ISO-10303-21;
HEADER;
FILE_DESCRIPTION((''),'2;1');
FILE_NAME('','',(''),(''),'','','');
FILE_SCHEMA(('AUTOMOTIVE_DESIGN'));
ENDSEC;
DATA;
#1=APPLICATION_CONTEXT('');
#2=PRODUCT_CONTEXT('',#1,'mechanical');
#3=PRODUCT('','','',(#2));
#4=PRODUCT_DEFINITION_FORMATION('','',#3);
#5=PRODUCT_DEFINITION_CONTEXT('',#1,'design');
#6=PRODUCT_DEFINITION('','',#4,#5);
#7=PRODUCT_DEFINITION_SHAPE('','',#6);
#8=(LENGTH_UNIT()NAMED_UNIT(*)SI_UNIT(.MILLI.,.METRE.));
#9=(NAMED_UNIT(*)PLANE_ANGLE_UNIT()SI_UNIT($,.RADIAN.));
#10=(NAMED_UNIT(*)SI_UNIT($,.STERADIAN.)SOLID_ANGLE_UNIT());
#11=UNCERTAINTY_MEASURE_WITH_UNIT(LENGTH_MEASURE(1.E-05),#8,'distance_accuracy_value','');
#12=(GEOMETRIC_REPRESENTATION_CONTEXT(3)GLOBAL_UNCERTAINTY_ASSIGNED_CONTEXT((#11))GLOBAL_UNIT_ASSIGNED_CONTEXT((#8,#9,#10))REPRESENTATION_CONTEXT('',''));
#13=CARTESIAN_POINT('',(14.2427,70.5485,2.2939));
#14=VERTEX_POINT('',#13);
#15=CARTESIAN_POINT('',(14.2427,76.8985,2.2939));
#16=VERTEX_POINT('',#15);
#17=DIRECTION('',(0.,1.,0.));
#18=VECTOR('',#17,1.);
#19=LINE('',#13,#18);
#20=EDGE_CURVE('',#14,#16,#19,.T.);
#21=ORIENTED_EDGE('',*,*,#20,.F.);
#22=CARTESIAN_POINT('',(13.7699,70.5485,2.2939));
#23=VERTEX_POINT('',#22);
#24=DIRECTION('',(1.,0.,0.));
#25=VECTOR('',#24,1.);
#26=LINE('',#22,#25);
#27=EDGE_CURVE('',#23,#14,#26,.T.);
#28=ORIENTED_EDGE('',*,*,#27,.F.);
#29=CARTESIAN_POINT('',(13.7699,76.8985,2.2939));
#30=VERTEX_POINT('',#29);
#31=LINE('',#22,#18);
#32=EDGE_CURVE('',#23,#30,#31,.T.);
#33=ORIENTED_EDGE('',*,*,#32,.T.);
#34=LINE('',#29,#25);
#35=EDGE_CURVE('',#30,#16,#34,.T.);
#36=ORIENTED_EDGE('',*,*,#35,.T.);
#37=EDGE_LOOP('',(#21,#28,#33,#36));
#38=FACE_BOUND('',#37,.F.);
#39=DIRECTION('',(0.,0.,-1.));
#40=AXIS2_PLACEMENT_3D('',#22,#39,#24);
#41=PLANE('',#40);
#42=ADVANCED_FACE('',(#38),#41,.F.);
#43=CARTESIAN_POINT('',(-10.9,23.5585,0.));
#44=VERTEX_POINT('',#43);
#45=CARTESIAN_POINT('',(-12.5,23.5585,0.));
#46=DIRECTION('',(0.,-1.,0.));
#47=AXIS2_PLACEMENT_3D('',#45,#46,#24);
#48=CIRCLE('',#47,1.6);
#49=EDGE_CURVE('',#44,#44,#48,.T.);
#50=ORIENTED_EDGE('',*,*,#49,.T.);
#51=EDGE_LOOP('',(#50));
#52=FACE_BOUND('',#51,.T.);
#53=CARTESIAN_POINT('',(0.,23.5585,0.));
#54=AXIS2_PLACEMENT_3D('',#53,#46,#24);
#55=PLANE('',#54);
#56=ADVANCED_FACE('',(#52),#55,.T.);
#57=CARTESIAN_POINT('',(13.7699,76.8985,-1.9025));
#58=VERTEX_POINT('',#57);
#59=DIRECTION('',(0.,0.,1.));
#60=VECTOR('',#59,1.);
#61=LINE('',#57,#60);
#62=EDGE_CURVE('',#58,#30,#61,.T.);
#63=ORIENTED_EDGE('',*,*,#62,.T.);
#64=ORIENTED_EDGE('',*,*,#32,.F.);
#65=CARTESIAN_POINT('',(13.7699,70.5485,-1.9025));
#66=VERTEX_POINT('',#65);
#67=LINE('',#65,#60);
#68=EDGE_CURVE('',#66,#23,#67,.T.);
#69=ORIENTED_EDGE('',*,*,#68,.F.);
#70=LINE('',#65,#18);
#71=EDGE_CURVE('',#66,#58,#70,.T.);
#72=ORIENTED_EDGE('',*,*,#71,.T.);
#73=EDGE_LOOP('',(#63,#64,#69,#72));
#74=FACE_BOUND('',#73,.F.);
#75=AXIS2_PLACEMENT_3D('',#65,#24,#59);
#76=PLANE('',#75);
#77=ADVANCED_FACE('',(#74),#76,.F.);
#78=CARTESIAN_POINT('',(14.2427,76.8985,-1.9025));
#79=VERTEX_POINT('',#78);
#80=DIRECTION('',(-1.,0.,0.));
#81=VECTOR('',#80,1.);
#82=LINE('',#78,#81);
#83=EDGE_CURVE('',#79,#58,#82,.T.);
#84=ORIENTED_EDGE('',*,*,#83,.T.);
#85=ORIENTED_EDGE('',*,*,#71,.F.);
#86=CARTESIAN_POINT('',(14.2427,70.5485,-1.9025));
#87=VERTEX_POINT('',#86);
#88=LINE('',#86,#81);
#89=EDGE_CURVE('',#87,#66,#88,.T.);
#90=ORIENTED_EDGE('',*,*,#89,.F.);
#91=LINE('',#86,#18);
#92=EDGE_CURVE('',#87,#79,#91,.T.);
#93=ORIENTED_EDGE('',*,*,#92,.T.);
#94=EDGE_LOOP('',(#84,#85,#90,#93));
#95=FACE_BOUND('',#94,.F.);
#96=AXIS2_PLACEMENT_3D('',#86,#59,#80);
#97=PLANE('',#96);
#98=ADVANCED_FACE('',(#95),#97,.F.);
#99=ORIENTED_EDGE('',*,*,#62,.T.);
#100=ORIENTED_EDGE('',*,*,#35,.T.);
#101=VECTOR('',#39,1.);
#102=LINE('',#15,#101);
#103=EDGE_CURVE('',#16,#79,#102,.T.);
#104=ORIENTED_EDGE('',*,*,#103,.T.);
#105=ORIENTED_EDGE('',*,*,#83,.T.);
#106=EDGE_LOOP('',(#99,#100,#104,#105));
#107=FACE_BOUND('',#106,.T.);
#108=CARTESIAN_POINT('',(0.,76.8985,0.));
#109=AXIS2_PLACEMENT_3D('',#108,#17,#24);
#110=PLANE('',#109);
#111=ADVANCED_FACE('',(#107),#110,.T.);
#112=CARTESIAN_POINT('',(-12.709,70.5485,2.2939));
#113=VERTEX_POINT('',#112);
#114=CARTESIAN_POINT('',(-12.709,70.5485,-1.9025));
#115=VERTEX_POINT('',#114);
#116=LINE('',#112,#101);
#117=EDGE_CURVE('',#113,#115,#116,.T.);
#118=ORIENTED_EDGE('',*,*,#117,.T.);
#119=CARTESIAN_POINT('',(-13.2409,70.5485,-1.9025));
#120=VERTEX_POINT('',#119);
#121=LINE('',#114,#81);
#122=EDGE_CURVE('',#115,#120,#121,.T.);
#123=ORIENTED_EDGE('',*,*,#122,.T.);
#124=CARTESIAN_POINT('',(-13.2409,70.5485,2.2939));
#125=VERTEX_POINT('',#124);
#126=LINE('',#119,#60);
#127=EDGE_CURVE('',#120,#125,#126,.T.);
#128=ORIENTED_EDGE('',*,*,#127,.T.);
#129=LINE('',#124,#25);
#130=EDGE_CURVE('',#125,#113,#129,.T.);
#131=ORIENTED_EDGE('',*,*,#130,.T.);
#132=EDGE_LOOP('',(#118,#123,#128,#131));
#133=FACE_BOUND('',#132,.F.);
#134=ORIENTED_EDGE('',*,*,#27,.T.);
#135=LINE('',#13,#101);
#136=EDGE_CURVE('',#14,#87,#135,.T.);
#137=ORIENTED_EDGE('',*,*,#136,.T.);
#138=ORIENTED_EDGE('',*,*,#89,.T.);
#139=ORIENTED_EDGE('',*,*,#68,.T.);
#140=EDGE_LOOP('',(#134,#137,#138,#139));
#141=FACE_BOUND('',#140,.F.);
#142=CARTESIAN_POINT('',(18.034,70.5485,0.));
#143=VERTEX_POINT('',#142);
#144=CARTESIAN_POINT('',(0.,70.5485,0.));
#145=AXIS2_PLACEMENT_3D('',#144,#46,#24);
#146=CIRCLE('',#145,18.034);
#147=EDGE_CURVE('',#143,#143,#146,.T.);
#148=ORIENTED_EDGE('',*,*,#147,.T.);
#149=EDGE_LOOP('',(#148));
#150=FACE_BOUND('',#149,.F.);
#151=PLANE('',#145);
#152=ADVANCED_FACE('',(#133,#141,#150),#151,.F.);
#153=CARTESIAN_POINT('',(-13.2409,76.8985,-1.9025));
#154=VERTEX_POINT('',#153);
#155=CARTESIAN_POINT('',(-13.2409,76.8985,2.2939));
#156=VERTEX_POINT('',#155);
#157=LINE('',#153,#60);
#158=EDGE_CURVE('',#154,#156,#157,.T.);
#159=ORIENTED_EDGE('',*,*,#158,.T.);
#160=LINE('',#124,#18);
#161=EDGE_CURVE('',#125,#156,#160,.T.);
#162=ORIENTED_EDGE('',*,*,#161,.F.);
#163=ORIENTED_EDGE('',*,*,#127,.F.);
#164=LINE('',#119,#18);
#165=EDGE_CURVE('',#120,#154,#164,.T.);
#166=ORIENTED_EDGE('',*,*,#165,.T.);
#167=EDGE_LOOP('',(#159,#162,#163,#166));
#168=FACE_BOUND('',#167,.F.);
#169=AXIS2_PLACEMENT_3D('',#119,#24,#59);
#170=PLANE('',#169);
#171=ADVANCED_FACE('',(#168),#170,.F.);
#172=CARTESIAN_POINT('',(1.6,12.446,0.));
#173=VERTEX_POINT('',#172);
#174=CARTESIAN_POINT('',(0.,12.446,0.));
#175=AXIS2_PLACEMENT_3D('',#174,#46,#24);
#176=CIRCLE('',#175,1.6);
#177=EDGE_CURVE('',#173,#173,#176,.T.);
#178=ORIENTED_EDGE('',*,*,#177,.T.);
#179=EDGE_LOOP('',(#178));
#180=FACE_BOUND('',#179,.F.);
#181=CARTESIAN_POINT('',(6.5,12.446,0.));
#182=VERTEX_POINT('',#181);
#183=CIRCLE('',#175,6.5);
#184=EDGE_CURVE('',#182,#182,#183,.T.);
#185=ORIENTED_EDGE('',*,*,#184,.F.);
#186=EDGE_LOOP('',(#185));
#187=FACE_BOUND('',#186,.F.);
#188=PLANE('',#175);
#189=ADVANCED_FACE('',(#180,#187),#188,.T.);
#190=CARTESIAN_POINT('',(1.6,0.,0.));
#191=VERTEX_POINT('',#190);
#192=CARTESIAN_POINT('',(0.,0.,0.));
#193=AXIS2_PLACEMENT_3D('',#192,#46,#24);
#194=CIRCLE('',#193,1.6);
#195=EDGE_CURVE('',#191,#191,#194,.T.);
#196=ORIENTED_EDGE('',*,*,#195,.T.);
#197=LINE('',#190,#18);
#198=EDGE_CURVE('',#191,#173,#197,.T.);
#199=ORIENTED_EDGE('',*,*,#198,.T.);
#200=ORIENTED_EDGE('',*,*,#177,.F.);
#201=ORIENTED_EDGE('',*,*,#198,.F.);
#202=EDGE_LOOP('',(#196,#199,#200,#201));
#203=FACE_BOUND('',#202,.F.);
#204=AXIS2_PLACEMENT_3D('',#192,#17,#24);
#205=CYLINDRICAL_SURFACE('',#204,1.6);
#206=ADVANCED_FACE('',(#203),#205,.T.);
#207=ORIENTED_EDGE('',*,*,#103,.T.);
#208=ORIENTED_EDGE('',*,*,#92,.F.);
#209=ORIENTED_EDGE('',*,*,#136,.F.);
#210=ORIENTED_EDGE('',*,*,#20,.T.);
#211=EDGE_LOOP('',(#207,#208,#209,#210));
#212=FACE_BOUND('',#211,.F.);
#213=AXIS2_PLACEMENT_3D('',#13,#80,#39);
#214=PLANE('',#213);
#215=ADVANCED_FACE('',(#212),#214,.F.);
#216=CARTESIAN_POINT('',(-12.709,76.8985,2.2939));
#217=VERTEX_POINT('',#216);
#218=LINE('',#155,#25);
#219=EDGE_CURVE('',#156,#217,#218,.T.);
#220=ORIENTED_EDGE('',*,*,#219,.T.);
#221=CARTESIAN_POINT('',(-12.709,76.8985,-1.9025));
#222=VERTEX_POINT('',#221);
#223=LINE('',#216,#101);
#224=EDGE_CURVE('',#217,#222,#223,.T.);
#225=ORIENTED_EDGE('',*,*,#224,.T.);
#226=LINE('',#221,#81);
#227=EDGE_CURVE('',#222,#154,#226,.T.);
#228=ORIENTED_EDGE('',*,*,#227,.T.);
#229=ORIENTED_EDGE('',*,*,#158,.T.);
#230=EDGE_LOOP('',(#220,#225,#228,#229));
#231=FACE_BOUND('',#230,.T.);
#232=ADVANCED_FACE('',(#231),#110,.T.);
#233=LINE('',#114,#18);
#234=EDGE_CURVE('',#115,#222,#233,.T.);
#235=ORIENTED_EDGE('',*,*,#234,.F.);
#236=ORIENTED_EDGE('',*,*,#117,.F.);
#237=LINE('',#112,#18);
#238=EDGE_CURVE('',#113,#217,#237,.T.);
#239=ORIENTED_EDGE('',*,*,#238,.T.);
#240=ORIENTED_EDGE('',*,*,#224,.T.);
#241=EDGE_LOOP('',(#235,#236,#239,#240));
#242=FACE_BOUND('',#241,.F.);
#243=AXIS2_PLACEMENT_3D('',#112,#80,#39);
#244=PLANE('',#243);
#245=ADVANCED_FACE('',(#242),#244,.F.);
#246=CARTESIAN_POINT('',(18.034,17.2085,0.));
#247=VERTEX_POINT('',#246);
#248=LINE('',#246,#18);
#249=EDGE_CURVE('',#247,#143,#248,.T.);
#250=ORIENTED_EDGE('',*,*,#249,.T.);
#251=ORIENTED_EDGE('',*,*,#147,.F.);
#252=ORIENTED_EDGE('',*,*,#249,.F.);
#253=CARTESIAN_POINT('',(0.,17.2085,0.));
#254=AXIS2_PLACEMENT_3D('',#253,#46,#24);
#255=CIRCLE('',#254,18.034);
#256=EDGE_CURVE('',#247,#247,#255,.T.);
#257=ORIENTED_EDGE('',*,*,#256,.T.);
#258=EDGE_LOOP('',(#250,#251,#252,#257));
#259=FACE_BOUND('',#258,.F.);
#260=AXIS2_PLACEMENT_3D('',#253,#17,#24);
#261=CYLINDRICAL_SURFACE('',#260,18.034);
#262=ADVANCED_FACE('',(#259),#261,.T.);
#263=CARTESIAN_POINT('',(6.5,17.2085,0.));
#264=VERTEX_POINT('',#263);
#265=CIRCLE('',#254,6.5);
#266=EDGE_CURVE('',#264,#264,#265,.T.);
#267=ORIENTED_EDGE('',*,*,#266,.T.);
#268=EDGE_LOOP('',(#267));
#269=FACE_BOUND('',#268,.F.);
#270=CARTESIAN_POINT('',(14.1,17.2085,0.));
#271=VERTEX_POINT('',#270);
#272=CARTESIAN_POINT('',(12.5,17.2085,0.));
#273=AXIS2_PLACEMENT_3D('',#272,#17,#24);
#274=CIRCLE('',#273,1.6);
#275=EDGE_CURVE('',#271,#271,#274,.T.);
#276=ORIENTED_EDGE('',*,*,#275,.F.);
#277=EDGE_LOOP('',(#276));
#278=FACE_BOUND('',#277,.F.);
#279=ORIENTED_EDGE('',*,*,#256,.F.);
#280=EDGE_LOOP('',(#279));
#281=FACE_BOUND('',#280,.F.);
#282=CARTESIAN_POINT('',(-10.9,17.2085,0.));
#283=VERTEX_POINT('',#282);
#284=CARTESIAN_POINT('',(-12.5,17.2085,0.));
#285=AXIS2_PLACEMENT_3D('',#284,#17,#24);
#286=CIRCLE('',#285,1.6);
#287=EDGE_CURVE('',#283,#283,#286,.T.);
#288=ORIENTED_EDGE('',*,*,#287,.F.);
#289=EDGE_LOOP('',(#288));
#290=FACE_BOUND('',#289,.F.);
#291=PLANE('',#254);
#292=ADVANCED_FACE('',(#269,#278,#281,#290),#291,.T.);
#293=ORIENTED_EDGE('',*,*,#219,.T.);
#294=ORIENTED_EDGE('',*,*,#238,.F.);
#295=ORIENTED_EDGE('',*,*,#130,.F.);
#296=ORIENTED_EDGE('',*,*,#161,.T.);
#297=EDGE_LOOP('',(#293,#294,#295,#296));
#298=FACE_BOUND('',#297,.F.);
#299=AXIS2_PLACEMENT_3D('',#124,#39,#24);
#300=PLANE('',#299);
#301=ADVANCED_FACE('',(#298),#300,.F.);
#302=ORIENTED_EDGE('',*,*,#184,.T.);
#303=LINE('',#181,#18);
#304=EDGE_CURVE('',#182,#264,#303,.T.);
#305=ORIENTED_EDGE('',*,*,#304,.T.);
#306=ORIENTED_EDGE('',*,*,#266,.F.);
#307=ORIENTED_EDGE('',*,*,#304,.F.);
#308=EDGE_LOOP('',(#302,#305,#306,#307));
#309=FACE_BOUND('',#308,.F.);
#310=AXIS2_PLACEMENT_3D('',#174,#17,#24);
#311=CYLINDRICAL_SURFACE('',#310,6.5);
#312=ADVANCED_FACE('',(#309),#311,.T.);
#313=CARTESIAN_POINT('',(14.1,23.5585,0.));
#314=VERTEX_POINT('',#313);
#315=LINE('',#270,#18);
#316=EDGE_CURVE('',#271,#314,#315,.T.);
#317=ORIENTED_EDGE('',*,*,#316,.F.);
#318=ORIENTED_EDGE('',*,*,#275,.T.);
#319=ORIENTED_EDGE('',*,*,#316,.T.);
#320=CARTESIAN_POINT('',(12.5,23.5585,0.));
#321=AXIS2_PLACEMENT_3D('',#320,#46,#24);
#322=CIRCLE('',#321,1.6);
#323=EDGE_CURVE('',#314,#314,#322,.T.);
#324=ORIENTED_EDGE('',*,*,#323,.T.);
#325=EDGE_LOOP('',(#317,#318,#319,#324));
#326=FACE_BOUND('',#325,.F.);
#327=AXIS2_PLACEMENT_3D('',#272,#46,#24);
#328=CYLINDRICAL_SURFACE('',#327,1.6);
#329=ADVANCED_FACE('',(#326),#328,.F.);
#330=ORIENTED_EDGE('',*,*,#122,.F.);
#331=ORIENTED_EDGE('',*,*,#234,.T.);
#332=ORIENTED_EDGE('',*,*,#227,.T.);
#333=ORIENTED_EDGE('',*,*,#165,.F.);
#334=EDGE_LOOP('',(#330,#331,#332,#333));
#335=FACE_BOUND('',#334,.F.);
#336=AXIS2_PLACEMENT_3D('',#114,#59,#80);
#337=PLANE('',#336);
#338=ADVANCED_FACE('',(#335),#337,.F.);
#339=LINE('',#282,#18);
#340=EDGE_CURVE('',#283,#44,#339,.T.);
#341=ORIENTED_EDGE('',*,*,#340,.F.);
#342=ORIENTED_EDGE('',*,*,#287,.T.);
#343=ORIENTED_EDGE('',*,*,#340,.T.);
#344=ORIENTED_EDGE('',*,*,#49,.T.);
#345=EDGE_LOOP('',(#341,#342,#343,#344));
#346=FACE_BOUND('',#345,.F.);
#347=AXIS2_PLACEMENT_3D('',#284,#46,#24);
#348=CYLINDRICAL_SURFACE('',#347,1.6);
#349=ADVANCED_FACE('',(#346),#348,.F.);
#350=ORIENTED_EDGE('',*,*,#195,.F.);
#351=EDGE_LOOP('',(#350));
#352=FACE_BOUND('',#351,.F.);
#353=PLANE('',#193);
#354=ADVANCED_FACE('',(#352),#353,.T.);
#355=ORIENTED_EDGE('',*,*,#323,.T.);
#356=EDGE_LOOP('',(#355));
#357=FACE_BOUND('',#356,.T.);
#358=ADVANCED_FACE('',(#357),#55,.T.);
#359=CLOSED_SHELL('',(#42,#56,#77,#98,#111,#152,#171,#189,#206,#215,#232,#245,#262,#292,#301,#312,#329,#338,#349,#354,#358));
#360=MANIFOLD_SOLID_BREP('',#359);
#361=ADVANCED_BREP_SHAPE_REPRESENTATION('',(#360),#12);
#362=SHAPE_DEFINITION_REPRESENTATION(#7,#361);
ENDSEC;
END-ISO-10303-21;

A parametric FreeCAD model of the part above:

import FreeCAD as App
import Part
import Sketcher
from FreeCAD import Vector
Q = App.Units.Quantity

doc = App.newDocument("Part")
body = doc.addObject("PartDesign::Body", "Body")

# Sketch on XY plane
sketch1 = doc.addObject("Sketcher::SketchObject", "Sketch")
body.addObject(sketch1)
sketch1.AttachmentSupport = (doc.XY_Plane, [""])
sketch1.MapMode = "FlatFace"
sketch1.addGeometry(Part.LineSegment(Vector(0, 0, 0), Vector(1.6, 0, 0)), False)
sketch1.addGeometry(Part.LineSegment(Vector(1.6, 0, 0), Vector(1.6, 12.4, 0)), False)
sketch1.addGeometry(Part.LineSegment(Vector(1.6, 12.4, 0), Vector(6.5, 12.4, 0)), False)
sketch1.addGeometry(Part.LineSegment(Vector(6.5, 12.4, 0), Vector(6.5, 17.2, 0)), False)
sketch1.addGeometry(Part.LineSegment(Vector(6.5, 17.2, 0), Vector(18, 17.2, 0)), False)
sketch1.addGeometry(Part.LineSegment(Vector(18, 17.2, 0), Vector(18, 70.5, 0)), False)
sketch1.addGeometry(Part.LineSegment(Vector(18, 70.5, 0), Vector(0, 70.5, 0)), False)
sketch1.addGeometry(Part.LineSegment(Vector(0, 70.5, 0), Vector(0, 0, 0)), False)
sketch1.addConstraint(Sketcher.Constraint("Coincident", 0, 2, 1, 1))
sketch1.addConstraint(Sketcher.Constraint("Coincident", 1, 2, 2, 1))
sketch1.addConstraint(Sketcher.Constraint("Coincident", 2, 2, 3, 1))
sketch1.addConstraint(Sketcher.Constraint("Coincident", 3, 2, 4, 1))
sketch1.addConstraint(Sketcher.Constraint("Coincident", 4, 2, 5, 1))
sketch1.addConstraint(Sketcher.Constraint("Coincident", 5, 2, 6, 1))
sketch1.addConstraint(Sketcher.Constraint("Coincident", 6, 2, 7, 1))
sketch1.addConstraint(Sketcher.Constraint("Coincident", 7, 2, 0, 1))
sketch1.addConstraint(Sketcher.Constraint("Horizontal", 0))
sketch1.addConstraint(Sketcher.Constraint("Vertical", 1))
sketch1.addConstraint(Sketcher.Constraint("Horizontal", 2))
sketch1.addConstraint(Sketcher.Constraint("Vertical", 3))
sketch1.addConstraint(Sketcher.Constraint("Horizontal", 4))
sketch1.addConstraint(Sketcher.Constraint("Vertical", 5))
sketch1.addConstraint(Sketcher.Constraint("Horizontal", 6))
sketch1.addConstraint(Sketcher.Constraint("Vertical", 7))
sketch1.addConstraint(Sketcher.Constraint("Coincident", 7, 2, -1, 1))
sketch1.addConstraint(Sketcher.Constraint("DistanceY", 5, 1, 5, 2, Q("2.1 in")))
sketch1.addConstraint(Sketcher.Constraint("DistanceX", 6, 2, 6, 1, Q("0.71 in")))
sketch1.addConstraint(Sketcher.Constraint("DistanceY", 1, 1, 1, 2, Q("0.49 in")))
sketch1.addConstraint(Sketcher.Constraint("DistanceX", 0, 1, 0, 2, Q("0.063 in")))
sketch1.addConstraint(Sketcher.Constraint("DistanceY", 3, 1, 3, 2, Q("0.1875 in")))
sketch1.addConstraint(Sketcher.Constraint("DistanceX", -1, 1, 2, 2, Q("0.2559 in")))
revolution = doc.addObject("PartDesign::Revolution", "Revolution")
body.addObject(revolution)
revolution.Profile = sketch1
revolution.ReferenceAxis = (sketch1, ["V_Axis"])
revolution.Angle = 360

# Sketch on XZ plane
sketch2 = doc.addObject("Sketcher::SketchObject", "Sketch001")
body.addObject(sketch2)
sketch2.AttachmentSupport = (doc.XZ_Plane, [""])
sketch2.MapMode = "FlatFace"
sketch2.AttachmentOffset = App.Placement(Vector(0, 0, -0.6775 * 25.4), App.Rotation())
sketch2.addGeometry(Part.Circle(Vector(12.5, 0, 0), Vector(0, 0, 1), 1.6), False)
sketch2.addGeometry(Part.Circle(Vector(-12.5, 0, 0), Vector(0, 0, 1), 1.6), False)
sketch2.addConstraint(Sketcher.Constraint("Equal", 0, 1))
sketch2.addConstraint(Sketcher.Constraint("Symmetric", 0, 3, 1, 3, -1, 1))
sketch2.addConstraint(Sketcher.Constraint("PointOnObject", 0, 3, -1))
sketch2.addConstraint(Sketcher.Constraint("Diameter", 0, 3.2))
sketch2.addConstraint(Sketcher.Constraint("DistanceX", 1, 3, 0, 3, 25.0))
pocket1 = doc.addObject("PartDesign::Pocket", "Pocket")
body.addObject(pocket1)
pocket1.Profile = sketch2
pocket1.Length = Q("0.25 in")

# Sketch on XZ plane
sketch3 = doc.addObject("Sketcher::SketchObject", "Sketch002")
body.addObject(sketch3)
sketch3.AttachmentSupport = (doc.XZ_Plane, [""])
sketch3.MapMode = "FlatFace"
sketch3.AttachmentOffset = App.Placement(Vector(0, 0, -2.7775 * 25.4), App.Rotation())
sketch3.addGeometry(Part.LineSegment(Vector(14.24, 2.29, 0), Vector(14.24, -1.9, 0)), False)
sketch3.addGeometry(Part.LineSegment(Vector(14.24, -1.9, 0), Vector(13.77, -1.9, 0)), False)
sketch3.addGeometry(Part.LineSegment(Vector(13.77, -1.9, 0), Vector(13.77, 2.29, 0)), False)
sketch3.addGeometry(Part.LineSegment(Vector(13.77, 2.29, 0), Vector(14.24, 2.29, 0)), False)
sketch3.addGeometry(Part.LineSegment(Vector(-12.71, 2.29, 0), Vector(-12.71, -1.9, 0)), False)
sketch3.addGeometry(Part.LineSegment(Vector(-12.71, -1.9, 0), Vector(-13.24, -1.9, 0)), False)
sketch3.addGeometry(Part.LineSegment(Vector(-13.24, -1.9, 0), Vector(-13.24, 2.29, 0)), False)
sketch3.addGeometry(Part.LineSegment(Vector(-13.24, 2.29, 0), Vector(-12.71, 2.29, 0)), False)
sketch3.addConstraint(Sketcher.Constraint("Coincident", 0, 2, 1, 1))
sketch3.addConstraint(Sketcher.Constraint("Coincident", 1, 2, 2, 1))
sketch3.addConstraint(Sketcher.Constraint("Coincident", 2, 2, 3, 1))
sketch3.addConstraint(Sketcher.Constraint("Coincident", 3, 2, 0, 1))
sketch3.addConstraint(Sketcher.Constraint("Coincident", 4, 2, 5, 1))
sketch3.addConstraint(Sketcher.Constraint("Coincident", 5, 2, 6, 1))
sketch3.addConstraint(Sketcher.Constraint("Coincident", 6, 2, 7, 1))
sketch3.addConstraint(Sketcher.Constraint("Coincident", 7, 2, 4, 1))
sketch3.addConstraint(Sketcher.Constraint("Vertical", 0))
sketch3.addConstraint(Sketcher.Constraint("Horizontal", 1))
sketch3.addConstraint(Sketcher.Constraint("Vertical", 2))
sketch3.addConstraint(Sketcher.Constraint("Horizontal", 3))
sketch3.addConstraint(Sketcher.Constraint("Vertical", 4))
sketch3.addConstraint(Sketcher.Constraint("Horizontal", 5))
sketch3.addConstraint(Sketcher.Constraint("Vertical", 6))
sketch3.addConstraint(Sketcher.Constraint("Horizontal", 7))
sketch3.addConstraint(Sketcher.Constraint("Horizontal", 1, 2, 4, 2))
sketch3.addConstraint(Sketcher.Constraint("Horizontal", 3, 2, 6, 2))
sketch3.addConstraint(Sketcher.Constraint("DistanceX", 1, 2, 1, 1, 0.4728))
sketch3.addConstraint(Sketcher.Constraint("DistanceX", 5, 2, 5, 1, 0.532))
sketch3.addConstraint(Sketcher.Constraint("DistanceY", 0, 2, 0, 1, 4.1964))
sketch3.addConstraint(Sketcher.Constraint("DistanceY", 0, 2, -1, 1, Q("0.0749 in")))
sketch3.addConstraint(Sketcher.Constraint("DistanceX", 5, 2, -1, 1, Q("0.5213 in")))
sketch3.addConstraint(Sketcher.Constraint("DistanceX", 4, 2, 0, 2, Q("1.0611 in")))
pad1 = doc.addObject("PartDesign::Pad", "Pad")
body.addObject(pad1)
pad1.Profile = sketch3
pad1.Length = Q("0.25 in")
pad1.Reversed = True

doc.recompute()
